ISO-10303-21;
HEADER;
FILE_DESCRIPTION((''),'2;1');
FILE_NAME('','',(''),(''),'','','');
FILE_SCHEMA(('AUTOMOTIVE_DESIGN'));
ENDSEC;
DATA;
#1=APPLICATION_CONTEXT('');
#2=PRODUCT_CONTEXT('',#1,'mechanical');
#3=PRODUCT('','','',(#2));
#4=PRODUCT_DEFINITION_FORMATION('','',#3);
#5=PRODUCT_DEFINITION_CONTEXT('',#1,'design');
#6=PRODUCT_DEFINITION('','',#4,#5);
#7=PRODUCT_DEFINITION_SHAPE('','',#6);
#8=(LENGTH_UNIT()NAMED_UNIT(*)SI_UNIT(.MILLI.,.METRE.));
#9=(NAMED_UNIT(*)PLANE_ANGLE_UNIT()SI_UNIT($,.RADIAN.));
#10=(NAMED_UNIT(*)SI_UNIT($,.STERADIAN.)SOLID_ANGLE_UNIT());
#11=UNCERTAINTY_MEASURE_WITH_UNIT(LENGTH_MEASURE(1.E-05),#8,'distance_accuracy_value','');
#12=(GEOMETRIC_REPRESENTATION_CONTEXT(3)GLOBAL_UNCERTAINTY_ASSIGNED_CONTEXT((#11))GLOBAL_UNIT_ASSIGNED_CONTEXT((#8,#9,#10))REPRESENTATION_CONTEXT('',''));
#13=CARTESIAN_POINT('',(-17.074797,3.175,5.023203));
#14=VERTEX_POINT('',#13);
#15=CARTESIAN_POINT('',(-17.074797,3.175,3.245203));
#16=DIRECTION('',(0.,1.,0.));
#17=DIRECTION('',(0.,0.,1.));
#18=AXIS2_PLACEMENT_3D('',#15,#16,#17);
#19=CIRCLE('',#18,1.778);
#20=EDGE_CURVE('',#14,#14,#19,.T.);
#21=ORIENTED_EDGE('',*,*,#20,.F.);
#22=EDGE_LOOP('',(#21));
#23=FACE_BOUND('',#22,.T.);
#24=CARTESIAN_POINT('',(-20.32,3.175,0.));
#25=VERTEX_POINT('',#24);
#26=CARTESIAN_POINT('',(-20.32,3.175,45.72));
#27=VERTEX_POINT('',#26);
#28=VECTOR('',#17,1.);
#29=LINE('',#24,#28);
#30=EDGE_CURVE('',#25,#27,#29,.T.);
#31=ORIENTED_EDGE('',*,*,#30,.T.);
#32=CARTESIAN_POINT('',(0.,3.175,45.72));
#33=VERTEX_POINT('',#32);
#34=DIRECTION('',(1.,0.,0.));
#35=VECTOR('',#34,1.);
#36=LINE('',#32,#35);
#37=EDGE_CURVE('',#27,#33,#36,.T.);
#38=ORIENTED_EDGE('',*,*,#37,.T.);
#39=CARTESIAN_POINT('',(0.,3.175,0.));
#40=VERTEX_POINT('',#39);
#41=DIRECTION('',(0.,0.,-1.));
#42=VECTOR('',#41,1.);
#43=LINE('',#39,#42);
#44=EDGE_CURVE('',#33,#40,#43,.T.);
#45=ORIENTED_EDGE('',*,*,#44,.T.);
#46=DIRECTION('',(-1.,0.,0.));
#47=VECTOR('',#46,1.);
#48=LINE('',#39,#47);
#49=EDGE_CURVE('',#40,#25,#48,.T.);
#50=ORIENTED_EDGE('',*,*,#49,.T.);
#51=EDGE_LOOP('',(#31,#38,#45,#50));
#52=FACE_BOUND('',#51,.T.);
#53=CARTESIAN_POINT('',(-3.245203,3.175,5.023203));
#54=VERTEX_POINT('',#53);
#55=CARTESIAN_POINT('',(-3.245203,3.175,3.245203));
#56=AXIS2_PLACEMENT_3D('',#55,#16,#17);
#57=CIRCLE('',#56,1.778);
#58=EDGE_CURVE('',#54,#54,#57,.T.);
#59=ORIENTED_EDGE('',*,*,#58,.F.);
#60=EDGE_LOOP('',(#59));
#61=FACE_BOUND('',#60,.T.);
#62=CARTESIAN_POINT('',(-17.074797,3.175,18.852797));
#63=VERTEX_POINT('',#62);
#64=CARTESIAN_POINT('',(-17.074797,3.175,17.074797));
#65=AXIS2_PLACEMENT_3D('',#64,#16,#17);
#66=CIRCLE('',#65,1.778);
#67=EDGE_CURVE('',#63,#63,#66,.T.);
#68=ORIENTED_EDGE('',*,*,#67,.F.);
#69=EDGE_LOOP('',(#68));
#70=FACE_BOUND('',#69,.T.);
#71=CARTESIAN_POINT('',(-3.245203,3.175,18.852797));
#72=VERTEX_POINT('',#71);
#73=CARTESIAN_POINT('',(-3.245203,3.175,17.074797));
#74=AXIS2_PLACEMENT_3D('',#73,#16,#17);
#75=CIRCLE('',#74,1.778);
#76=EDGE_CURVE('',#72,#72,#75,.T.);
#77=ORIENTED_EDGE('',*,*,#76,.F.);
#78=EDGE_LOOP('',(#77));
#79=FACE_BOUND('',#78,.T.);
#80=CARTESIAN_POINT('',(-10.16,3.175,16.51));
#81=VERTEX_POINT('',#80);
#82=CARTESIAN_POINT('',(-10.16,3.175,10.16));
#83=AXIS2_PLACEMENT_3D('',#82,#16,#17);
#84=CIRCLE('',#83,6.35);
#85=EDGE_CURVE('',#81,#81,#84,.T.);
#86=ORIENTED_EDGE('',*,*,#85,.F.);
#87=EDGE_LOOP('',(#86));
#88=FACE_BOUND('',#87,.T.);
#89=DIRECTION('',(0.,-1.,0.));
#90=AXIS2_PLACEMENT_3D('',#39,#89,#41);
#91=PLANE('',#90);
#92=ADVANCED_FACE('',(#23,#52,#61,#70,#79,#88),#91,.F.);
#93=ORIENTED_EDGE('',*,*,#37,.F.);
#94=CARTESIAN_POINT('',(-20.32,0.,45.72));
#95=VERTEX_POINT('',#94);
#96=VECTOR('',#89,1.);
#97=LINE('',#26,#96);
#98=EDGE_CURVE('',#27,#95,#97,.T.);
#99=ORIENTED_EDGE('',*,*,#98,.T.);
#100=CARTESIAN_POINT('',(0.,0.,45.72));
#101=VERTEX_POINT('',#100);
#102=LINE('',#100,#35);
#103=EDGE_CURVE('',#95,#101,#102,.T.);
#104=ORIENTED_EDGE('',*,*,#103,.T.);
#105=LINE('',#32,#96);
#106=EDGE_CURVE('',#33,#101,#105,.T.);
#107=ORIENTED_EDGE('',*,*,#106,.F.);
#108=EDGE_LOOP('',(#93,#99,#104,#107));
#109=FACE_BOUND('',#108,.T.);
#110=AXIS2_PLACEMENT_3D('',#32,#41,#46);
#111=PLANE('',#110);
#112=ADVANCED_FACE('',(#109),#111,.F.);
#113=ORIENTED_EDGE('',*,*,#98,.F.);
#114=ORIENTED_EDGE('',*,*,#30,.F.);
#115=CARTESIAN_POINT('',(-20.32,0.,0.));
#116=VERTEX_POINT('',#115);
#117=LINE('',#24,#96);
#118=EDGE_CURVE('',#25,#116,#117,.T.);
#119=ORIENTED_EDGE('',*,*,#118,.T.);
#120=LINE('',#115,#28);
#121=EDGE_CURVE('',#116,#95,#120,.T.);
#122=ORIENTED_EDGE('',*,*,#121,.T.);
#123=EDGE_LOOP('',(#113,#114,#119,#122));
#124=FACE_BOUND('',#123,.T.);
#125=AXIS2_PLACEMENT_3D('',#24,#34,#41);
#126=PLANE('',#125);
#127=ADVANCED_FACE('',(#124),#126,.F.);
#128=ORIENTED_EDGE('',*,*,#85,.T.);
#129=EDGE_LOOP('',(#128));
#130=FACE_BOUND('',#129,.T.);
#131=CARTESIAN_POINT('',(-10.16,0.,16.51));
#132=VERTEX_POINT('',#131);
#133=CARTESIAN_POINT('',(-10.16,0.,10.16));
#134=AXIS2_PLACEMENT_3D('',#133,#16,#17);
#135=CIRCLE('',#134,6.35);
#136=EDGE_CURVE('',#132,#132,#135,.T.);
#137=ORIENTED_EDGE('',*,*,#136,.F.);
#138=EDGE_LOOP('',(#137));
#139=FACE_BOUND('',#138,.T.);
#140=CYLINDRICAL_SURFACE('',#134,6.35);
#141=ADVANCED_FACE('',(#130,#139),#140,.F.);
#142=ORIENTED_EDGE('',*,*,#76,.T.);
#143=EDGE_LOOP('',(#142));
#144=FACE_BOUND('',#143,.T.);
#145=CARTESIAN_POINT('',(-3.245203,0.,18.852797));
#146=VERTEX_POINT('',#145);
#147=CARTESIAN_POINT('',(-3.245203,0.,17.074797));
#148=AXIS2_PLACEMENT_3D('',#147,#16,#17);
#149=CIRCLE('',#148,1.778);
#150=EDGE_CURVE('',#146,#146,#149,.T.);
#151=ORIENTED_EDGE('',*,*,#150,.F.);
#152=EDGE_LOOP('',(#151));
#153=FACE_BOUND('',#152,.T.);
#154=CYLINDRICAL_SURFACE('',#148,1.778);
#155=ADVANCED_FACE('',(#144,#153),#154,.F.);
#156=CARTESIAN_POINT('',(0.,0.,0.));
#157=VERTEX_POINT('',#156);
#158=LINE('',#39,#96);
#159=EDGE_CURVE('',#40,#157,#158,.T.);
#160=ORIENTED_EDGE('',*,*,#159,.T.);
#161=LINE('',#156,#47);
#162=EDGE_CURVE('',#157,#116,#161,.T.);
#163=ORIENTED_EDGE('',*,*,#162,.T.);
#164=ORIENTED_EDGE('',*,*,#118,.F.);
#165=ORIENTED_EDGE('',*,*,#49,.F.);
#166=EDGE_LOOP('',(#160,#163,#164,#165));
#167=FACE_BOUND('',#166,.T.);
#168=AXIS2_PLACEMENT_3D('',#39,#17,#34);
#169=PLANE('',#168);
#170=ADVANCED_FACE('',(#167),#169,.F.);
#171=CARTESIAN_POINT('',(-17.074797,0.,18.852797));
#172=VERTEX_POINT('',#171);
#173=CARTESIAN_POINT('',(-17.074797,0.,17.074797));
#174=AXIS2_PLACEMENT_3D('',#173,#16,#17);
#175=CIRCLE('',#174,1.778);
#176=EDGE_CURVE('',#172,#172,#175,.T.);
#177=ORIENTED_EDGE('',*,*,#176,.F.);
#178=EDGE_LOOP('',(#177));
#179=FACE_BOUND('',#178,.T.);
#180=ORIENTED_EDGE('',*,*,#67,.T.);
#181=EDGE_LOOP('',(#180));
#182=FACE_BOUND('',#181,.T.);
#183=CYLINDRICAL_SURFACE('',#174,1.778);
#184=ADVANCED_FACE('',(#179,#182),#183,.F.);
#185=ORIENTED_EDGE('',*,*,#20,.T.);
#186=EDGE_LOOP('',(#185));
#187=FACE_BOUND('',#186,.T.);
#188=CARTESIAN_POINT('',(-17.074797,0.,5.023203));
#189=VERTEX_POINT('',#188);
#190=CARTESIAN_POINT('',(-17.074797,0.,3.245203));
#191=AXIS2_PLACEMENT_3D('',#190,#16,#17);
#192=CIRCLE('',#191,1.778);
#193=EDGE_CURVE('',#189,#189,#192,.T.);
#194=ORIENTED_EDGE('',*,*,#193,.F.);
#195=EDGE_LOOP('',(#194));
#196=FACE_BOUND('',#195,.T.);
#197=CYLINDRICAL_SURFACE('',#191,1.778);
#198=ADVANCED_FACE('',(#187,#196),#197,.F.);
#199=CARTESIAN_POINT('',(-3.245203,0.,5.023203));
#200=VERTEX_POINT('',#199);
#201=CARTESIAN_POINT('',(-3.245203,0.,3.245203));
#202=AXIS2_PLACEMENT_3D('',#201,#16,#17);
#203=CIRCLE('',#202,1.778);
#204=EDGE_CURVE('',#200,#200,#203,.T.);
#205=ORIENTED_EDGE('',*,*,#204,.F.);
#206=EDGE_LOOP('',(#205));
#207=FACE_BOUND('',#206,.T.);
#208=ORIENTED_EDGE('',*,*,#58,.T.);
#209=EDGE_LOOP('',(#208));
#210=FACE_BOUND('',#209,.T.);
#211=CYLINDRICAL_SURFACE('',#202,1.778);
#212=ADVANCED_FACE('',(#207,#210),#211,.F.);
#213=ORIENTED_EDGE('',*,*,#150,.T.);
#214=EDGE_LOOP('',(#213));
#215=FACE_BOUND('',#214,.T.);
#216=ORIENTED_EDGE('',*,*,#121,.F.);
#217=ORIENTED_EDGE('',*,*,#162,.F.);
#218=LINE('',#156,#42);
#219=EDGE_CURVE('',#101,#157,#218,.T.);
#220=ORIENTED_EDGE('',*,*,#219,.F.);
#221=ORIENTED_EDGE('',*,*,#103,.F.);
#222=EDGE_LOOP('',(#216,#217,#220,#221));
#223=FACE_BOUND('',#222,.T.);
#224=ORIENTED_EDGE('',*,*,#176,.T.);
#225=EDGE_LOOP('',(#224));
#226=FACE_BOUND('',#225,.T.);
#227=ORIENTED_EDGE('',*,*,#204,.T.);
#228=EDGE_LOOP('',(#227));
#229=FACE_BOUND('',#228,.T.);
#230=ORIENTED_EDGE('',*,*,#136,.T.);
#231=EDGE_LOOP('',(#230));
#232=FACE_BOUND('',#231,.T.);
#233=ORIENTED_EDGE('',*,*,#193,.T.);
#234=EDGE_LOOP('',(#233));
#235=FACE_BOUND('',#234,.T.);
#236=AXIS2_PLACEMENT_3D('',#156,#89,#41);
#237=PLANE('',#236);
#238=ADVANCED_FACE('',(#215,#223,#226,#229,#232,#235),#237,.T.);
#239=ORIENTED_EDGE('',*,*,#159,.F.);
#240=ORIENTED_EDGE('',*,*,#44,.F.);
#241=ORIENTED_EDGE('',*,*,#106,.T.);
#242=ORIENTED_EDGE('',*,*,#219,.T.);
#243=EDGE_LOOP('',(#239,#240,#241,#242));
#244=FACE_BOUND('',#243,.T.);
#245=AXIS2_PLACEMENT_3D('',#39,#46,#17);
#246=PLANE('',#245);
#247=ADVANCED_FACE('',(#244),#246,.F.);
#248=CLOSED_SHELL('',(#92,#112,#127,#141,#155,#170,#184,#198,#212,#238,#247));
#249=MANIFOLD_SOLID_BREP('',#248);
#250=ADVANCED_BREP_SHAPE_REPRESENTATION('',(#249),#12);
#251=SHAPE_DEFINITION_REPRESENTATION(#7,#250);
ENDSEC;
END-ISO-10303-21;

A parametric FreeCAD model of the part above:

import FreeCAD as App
import Part
import Sketcher
from FreeCAD import Vector
Q = App.Units.Quantity

doc = App.newDocument("Part")
body = doc.addObject("PartDesign::Body", "Body")

# Sketch on XZ plane
sketch1 = doc.addObject("Sketcher::SketchObject", "Sketch")
body.addObject(sketch1)
sketch1.AttachmentSupport = (doc.XZ_Plane, [""])
sketch1.MapMode = "FlatFace"
sketch1.addGeometry([
    Part.LineSegment(Vector(-20, 0, 0), Vector(-20, 46, 0)),
    Part.LineSegment(Vector(-20, 46, 0), Vector(0, 46, 0)),
    Part.LineSegment(Vector(0, 46, 0), Vector(0, 0, 0)),
    Part.LineSegment(Vector(0, 0, 0), Vector(-20, 0, 0)),
], False)
sketch1.addConstraint([
    Sketcher.Constraint("Coincident", 0, 2, 1, 1),
    Sketcher.Constraint("Coincident", 1, 2, 2, 1),
    Sketcher.Constraint("Coincident", 2, 2, 3, 1),
    Sketcher.Constraint("Coincident", 3, 2, 0, 1),
    Sketcher.Constraint("Vertical", 0),
    Sketcher.Constraint("Horizontal", 1),
    Sketcher.Constraint("Vertical", 2),
    Sketcher.Constraint("Horizontal", 3),
    Sketcher.Constraint("Coincident", 2, 2, -1, 1),
    Sketcher.Constraint("DistanceX", 1, 1, 1, 2, Q("0.8 in")),
    Sketcher.Constraint("DistanceY", 0, 1, 0, 2, Q("1.8 in")),
])
pad1 = doc.addObject("PartDesign::Pad", "Pad")
body.addObject(pad1)
pad1.Profile = sketch1
pad1.Length = Q("0.125 in")
pad1.Reversed = True

# Sketch on XZ plane
sketch2 = doc.addObject("Sketcher::SketchObject", "Sketch001")
body.addObject(sketch2)
sketch2.AttachmentSupport = (doc.XZ_Plane, [""])
sketch2.MapMode = "FlatFace"
sketch2.AttachmentOffset = App.Placement(Vector(0, 0, -0.125 * 25.4), App.Rotation())
sketch2.addGeometry([
    Part.Circle(Vector(-17.1, 17.1, 0), Vector(0, 0, 1), 1.8),  # 0
    Part.Circle(Vector(-3.2, 17.1, 0), Vector(0, 0, 1), 1.8),  # 1
    Part.Circle(Vector(-17.1, 3.2, 0), Vector(0, 0, 1), 1.8),  # 2
    Part.Circle(Vector(-3.2, 3.2, 0), Vector(0, 0, 1), 1.8),  # 3
    Part.Circle(Vector(-10.2, 10.2, 0), Vector(0, 0, 1), 6.3),  # 4
], False)
sketch2.addConstraint([
    Sketcher.Constraint("Equal", 0, 1),
    Sketcher.Constraint("Equal", 1, 2),
    Sketcher.Constraint("Equal", 2, 3),
    Sketcher.Constraint("Horizontal", 0, 3, 1, 3),
    Sketcher.Constraint("Horizontal", 2, 3, 3, 3),
    Sketcher.Constraint("Vertical", 0, 3, 2, 3),
    Sketcher.Constraint("Vertical", 1, 3, 3, 3),
    Sketcher.Constraint("Diameter", 4, Q("0.5 in")),
    Sketcher.Constraint("Diameter", 0, Q("0.14 in")),
    Sketcher.Constraint("DistanceX", 4, 3, -1, 1, Q("0.4 in")),
    Sketcher.Constraint("DistanceY", -1, 1, 4, 3, Q("0.4 in")),
    Sketcher.Constraint("DistanceX", 0, 3, -1, 1, 17.074797),
    Sketcher.Constraint("DistanceY", -1, 1, 0, 3, 17.074797),
    Sketcher.Constraint("DistanceX", 1, 3, -1, 1, 3.245203),
    Sketcher.Constraint("DistanceY", -1, 1, 2, 3, 3.245203),
])
pocket1 = doc.addObject("PartDesign::Pocket", "Pocket")
body.addObject(pocket1)
pocket1.Profile = sketch2
pocket1.Length = Q("0.125 in")
pocket1.Reversed = True

doc.recompute()
